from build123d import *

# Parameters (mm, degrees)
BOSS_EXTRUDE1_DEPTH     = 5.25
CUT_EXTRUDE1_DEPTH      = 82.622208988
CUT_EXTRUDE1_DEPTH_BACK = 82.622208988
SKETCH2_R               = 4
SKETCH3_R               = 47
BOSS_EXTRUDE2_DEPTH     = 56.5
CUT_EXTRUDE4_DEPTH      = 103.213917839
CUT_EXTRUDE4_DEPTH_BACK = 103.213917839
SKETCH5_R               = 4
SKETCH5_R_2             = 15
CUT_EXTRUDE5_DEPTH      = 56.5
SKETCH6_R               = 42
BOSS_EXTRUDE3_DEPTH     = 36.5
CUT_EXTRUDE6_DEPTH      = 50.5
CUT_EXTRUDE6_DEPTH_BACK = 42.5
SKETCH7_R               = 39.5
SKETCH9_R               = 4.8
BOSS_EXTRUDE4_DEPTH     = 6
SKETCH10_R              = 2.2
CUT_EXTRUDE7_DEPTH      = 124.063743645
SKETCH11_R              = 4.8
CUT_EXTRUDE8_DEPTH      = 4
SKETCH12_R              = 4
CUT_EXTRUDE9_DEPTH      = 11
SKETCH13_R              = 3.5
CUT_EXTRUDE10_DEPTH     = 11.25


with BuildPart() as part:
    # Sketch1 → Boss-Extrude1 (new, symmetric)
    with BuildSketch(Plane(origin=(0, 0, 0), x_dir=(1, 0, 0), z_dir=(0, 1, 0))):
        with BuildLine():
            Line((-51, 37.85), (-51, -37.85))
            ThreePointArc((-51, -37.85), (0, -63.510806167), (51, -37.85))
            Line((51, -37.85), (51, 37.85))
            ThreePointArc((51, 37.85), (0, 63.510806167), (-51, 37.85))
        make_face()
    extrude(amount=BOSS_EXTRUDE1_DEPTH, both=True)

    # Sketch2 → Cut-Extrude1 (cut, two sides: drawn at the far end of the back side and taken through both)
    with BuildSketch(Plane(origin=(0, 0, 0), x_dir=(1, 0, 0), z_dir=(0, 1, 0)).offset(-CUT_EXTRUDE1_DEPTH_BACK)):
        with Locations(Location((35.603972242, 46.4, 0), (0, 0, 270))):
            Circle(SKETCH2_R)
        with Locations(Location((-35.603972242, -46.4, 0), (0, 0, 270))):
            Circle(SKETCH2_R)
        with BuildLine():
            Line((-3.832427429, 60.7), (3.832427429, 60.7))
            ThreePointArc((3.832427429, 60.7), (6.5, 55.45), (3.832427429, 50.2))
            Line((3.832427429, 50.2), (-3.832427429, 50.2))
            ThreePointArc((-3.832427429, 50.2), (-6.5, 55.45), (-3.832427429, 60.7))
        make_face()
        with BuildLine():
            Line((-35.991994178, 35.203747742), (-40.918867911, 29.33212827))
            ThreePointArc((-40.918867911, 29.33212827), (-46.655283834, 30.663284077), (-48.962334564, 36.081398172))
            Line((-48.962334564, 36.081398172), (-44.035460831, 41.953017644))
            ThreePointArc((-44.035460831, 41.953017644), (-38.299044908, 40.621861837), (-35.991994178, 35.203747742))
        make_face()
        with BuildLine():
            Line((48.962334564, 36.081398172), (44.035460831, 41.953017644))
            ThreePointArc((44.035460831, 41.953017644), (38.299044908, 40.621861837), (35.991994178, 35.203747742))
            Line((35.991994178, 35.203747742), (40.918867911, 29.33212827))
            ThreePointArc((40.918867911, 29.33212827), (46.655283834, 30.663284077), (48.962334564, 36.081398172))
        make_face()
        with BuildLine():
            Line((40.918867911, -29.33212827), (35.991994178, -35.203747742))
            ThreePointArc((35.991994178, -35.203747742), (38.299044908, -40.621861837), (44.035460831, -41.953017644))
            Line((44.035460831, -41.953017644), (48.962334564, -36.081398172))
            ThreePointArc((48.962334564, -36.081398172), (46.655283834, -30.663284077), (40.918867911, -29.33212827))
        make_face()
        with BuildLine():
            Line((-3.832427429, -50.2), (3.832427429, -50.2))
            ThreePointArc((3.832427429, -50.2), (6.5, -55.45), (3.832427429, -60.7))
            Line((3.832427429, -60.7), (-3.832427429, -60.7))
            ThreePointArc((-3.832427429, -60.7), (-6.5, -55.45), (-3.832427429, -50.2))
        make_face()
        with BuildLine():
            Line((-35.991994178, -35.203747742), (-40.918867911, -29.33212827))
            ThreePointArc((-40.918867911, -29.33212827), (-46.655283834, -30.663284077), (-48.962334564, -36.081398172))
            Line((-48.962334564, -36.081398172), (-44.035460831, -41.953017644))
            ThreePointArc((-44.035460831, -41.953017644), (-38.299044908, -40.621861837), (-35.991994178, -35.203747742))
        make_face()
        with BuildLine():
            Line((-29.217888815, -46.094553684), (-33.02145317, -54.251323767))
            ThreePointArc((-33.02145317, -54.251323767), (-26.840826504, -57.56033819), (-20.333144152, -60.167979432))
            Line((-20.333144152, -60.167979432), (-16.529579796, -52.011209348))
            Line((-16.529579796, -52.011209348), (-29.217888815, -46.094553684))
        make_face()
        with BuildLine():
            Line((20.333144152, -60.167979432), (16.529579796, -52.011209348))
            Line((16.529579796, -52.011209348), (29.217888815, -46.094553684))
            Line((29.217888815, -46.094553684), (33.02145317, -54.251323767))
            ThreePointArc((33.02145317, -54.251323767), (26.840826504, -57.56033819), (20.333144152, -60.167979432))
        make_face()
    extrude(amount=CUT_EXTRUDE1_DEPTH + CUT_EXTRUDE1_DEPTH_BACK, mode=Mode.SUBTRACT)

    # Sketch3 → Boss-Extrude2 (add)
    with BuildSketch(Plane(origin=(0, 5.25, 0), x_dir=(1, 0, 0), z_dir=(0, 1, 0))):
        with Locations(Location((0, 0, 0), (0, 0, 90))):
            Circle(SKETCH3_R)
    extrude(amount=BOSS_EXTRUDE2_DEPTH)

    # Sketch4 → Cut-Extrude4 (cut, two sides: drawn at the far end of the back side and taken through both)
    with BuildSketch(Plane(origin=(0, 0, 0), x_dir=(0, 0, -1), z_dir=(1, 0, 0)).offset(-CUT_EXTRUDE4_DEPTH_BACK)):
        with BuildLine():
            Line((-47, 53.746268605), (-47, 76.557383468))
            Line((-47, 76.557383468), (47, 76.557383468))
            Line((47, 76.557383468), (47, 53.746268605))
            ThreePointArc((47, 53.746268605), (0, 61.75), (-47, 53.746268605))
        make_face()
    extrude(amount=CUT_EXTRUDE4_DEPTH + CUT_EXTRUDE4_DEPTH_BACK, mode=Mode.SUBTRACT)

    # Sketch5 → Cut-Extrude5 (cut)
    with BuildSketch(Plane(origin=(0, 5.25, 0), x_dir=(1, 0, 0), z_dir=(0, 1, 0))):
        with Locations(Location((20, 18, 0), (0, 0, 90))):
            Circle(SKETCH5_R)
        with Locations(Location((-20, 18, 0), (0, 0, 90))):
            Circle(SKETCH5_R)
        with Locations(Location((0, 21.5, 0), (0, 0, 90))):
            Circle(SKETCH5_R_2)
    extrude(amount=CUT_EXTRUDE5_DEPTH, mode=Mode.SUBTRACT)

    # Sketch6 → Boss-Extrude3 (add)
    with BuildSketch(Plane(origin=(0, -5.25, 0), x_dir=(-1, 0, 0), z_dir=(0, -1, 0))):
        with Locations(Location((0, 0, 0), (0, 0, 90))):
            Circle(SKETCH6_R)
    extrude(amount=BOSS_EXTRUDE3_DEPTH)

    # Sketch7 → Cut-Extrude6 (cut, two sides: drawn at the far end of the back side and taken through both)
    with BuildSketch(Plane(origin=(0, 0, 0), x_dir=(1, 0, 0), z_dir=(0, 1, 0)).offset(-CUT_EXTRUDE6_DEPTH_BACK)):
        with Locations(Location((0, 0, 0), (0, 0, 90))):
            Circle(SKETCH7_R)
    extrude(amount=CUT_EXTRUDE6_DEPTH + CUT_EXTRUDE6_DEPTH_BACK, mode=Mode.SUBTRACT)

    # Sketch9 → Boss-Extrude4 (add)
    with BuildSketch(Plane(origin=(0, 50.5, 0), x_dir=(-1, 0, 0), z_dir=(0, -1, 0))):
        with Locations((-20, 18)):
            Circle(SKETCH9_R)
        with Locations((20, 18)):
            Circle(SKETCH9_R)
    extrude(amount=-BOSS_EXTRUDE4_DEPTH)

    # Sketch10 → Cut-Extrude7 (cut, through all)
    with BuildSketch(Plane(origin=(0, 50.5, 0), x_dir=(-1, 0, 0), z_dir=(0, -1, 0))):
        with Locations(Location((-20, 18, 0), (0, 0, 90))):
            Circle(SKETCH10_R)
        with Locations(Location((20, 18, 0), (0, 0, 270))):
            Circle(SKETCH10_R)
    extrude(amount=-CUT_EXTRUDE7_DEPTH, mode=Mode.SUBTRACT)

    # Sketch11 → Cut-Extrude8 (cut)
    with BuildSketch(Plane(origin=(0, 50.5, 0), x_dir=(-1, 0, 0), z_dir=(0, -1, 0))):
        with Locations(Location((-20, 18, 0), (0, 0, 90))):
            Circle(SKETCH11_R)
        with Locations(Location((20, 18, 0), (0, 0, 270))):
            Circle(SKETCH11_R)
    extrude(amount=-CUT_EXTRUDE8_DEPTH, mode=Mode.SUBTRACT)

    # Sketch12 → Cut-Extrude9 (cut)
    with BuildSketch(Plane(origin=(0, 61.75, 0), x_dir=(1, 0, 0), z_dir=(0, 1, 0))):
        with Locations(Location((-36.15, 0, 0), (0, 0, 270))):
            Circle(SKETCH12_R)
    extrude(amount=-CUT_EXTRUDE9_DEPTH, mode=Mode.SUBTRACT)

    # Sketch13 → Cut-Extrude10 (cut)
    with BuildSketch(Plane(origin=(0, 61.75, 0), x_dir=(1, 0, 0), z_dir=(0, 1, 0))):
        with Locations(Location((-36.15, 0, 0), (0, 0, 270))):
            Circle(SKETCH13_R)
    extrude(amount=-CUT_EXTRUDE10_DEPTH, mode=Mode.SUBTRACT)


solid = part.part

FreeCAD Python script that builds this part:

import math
import FreeCAD as App
import Part
import Sketcher

V = App.Vector
Q = App.Units.Quantity

doc = App.newDocument("Part")
body = doc.addObject("PartDesign::Body", "Body")

sketch1 = body.newObject("Sketcher::SketchObject", "Sketch")
sketch1.AttachmentSupport = (doc.getObject("XZ_Plane"), [""])
sketch1.MapMode = "FlatFace"
sketch1.addGeometry([
    Part.LineSegment(V(-51, -38, 0), V(-51, 38, 0)),
    Part.ArcOfCircle(Part.Circle(V(0, 0, 0), V(0, 0, 1), 64), math.radians(37), math.radians(143)),
    Part.LineSegment(V(51, 38, 0), V(51, -38, 0)),
    Part.ArcOfCircle(Part.Circle(V(0, 0, 0), V(0, 0, 1), 64), math.radians(-143), math.radians(-37)),
], False)
sketch1.addConstraint([
    Sketcher.Constraint("Coincident", 0, 2, 1, 2),
    Sketcher.Constraint("Coincident", 1, 1, 2, 1),
    Sketcher.Constraint("Coincident", 2, 2, 3, 2),
    Sketcher.Constraint("Coincident", 3, 1, 0, 1),
    Sketcher.Constraint("Vertical", 0),
    Sketcher.Constraint("Vertical", 2),
    Sketcher.Constraint("Coincident", 1, 3, -1, 1),
    Sketcher.Constraint("Coincident", 3, 3, -1, 1),
    Sketcher.Constraint("Equal", 1, 3),
    Sketcher.Constraint("Horizontal", 0, 2, 1, 1),
    Sketcher.Constraint("DistanceY", 0, 1, 0, 2, Q("75.7 mm")),
    Sketcher.Constraint("DistanceX", 0, 2, -1, 1, Q("51 mm")),
])
pad1 = body.newObject("PartDesign::Pad", "Pad")
pad1.Profile = sketch1
pad1.Length = 10.5
pad1.Midplane = True

sketch2 = body.newObject("Sketcher::SketchObject", "Sketch001")
sketch2.AttachmentSupport = (doc.getObject("XZ_Plane"), [""])
sketch2.MapMode = "FlatFace"
sketch2.addGeometry([
    Part.Circle(V(35.6, -46.4, 0), V(0, 0, 1), 4),
    Part.Circle(V(-35.6, 46.4, 0), V(0, 0, 1), 4),
    Part.LineSegment(V(3.8, -60.7, 0), V(-3.8, -60.7, 0)),
    Part.ArcOfCircle(Part.Circle(V(0, -55.5, 0), V(0, 0, 1), 6.5), math.radians(126), math.radians(234)),
    Part.LineSegment(V(-3.8, -50.2, 0), V(3.8, -50.2, 0)),
    Part.ArcOfCircle(Part.Circle(V(0, -55.5, 0), V(0, 0, 1), 6.5), math.radians(-54), math.radians(54)),
    Part.LineSegment(V(-40.9, -29.3, 0), V(-36, -35.2, 0)),
    Part.ArcOfCircle(Part.Circle(V(-42.5, -35.6, 0), V(0, 0, 1), 6.5), math.radians(-104), math.radians(4)),
    Part.LineSegment(V(-44, -42, 0), V(-49, -36.1, 0)),
    Part.ArcOfCircle(Part.Circle(V(-42.5, -35.6, 0), V(0, 0, 1), 6.5), math.radians(76), math.radians(184)),
    Part.LineSegment(V(49, -36.1, 0), V(44, -42, 0)),
    Part.ArcOfCircle(Part.Circle(V(42.5, -35.6, 0), V(0, 0, 1), 6.5), math.radians(176), math.radians(284)),
    Part.LineSegment(V(36, -35.2, 0), V(40.9, -29.3, 0)),
    Part.ArcOfCircle(Part.Circle(V(42.5, -35.6, 0), V(0, 0, 1), 6.5), math.radians(-4), math.radians(104)),
    Part.LineSegment(V(40.9, 29.3, 0), V(36, 35.2, 0)),
    Part.ArcOfCircle(Part.Circle(V(42.5, 35.6, 0), V(0, 0, 1), 6.5), math.radians(76), math.radians(184)),
    Part.LineSegment(V(44, 42, 0), V(49, 36.1, 0)),
    Part.ArcOfCircle(Part.Circle(V(42.5, 35.6, 0), V(0, 0, 1), 6.5), math.radians(-104), math.radians(4)),
    Part.LineSegment(V(3.8, 50.2, 0), V(-3.8, 50.2, 0)),
    Part.ArcOfCircle(Part.Circle(V(0, 55.5, 0), V(0, 0, 1), 6.5), math.radians(126), math.radians(234)),
    Part.LineSegment(V(-3.8, 60.7, 0), V(3.8, 60.7, 0)),
    Part.ArcOfCircle(Part.Circle(V(0, 55.5, 0), V(0, 0, 1), 6.5), math.radians(-54), math.radians(54)),
    Part.LineSegment(V(-36, 35.2, 0), V(-40.9, 29.3, 0)),
    Part.ArcOfCircle(Part.Circle(V(-42.5, 35.6, 0), V(0, 0, 1), 6.5), math.radians(176), math.radians(284)),
    Part.LineSegment(V(-49, 36.1, 0), V(-44, 42, 0)),
    Part.ArcOfCircle(Part.Circle(V(-42.5, 35.6, 0), V(0, 0, 1), 6.5), math.radians(-4), math.radians(104)),
    Part.LineSegment(V(-29.2, 46.1, 0), V(-33, 54.3, 0)),
    Part.ArcOfCircle(Part.Circle(V(0, 0, 0), V(0, 0, 1), 63.5), math.radians(108.67), math.radians(121.33)),
    Part.LineSegment(V(-20.3, 60.2, 0), V(-16.5, 52, 0)),
    Part.LineSegment(V(-16.5, 52, 0), V(-29.2, 46.1, 0)),
    Part.LineSegment(V(16.5, 52, 0), V(20.3, 60.2, 0)),
    Part.ArcOfCircle(Part.Circle(V(0, 0, 0), V(0, 0, 1), 63.5), math.radians(58.67), math.radians(71.33)),
    Part.LineSegment(V(33, 54.3, 0), V(29.2, 46.1, 0)),
    Part.LineSegment(V(29.2, 46.1, 0), V(16.5, 52, 0)),
], False)
sketch2.addConstraint([
    Sketcher.Constraint("Coincident", 2, 2, 3, 2),
    Sketcher.Constraint("Coincident", 3, 1, 4, 1),
    Sketcher.Constraint("Coincident", 4, 2, 5, 2),
    Sketcher.Constraint("Coincident", 5, 1, 2, 1),
    Sketcher.Constraint("Coincident", 6, 2, 7, 2),
    Sketcher.Constraint("Coincident", 7, 1, 8, 1),
    Sketcher.Constraint("Coincident", 8, 2, 9, 2),
    Sketcher.Constraint("Coincident", 9, 1, 6, 1),
    Sketcher.Constraint("Coincident", 10, 2, 11, 2),
    Sketcher.Constraint("Coincident", 11, 1, 12, 1),
    Sketcher.Constraint("Coincident", 12, 2, 13, 2),
    Sketcher.Constraint("Coincident", 13, 1, 10, 1),
    Sketcher.Constraint("Coincident", 14, 2, 15, 2),
    Sketcher.Constraint("Coincident", 15, 1, 16, 1),
    Sketcher.Constraint("Coincident", 16, 2, 17, 2),
    Sketcher.Constraint("Coincident", 17, 1, 14, 1),
    Sketcher.Constraint("Coincident", 18, 2, 19, 2),
    Sketcher.Constraint("Coincident", 19, 1, 20, 1),
    Sketcher.Constraint("Coincident", 20, 2, 21, 2),
    Sketcher.Constraint("Coincident", 21, 1, 18, 1),
    Sketcher.Constraint("Coincident", 22, 2, 23, 2),
    Sketcher.Constraint("Coincident", 23, 1, 24, 1),
    Sketcher.Constraint("Coincident", 24, 2, 25, 2),
    Sketcher.Constraint("Coincident", 25, 1, 22, 1),
    Sketcher.Constraint("Coincident", 26, 2, 27, 2),
    Sketcher.Constraint("Coincident", 27, 1, 28, 1),
    Sketcher.Constraint("Coincident", 28, 2, 29, 1),
    Sketcher.Constraint("Coincident", 29, 2, 26, 1),
    Sketcher.Constraint("Coincident", 30, 2, 31, 2),
    Sketcher.Constraint("Coincident", 31, 1, 32, 1),
    Sketcher.Constraint("Coincident", 32, 2, 33, 1),
    Sketcher.Constraint("Coincident", 33, 2, 30, 1),
    Sketcher.Constraint("Horizontal", 2),
    Sketcher.Constraint("Horizontal", 4),
    Sketcher.Constraint("Horizontal", 18),
    Sketcher.Constraint("Horizontal", 20),
    Sketcher.Constraint("Coincident", 27, 3, -1, 1),
    Sketcher.Constraint("Coincident", 31, 3, -1, 1),
    Sketcher.Constraint("Coincident", 5, 3, 3, 3),
    Sketcher.Constraint("Coincident", 9, 3, 7, 3),
    Sketcher.Constraint("Coincident", 13, 3, 11, 3),
    Sketcher.Constraint("Coincident", 17, 3, 15, 3),
    Sketcher.Constraint("Coincident", 21, 3, 19, 3),
    Sketcher.Constraint("Coincident", 25, 3, 23, 3),
    Sketcher.Constraint("Equal", 0, 1),
    Sketcher.Constraint("Equal", 3, 5),
    Sketcher.Constraint("Equal", 5, 7),
    Sketcher.Constraint("Equal", 7, 9),
    Sketcher.Constraint("Equal", 9, 11),
    Sketcher.Constraint("Equal", 11, 13),
    Sketcher.Constraint("Equal", 13, 15),
    Sketcher.Constraint("Equal", 15, 17),
    Sketcher.Constraint("Equal", 17, 19),
    Sketcher.Constraint("Equal", 19, 21),
    Sketcher.Constraint("Equal", 21, 23),
    Sketcher.Constraint("Equal", 23, 25),
    Sketcher.Constraint("Equal", 27, 31),
    Sketcher.Constraint("Symmetric", 0, 3, 1, 3, -1, 1),
    Sketcher.Constraint("Symmetric", 7, 3, 15, 3, -1, 1),
    Sketcher.Constraint("Symmetric", 3, 3, 19, 3, -1, 1),
    Sketcher.Constraint("Symmetric", 11, 3, 23, 3, -1, 1),
    Sketcher.Constraint("Symmetric", 7, 3, 11, 3, -2),
    Sketcher.Constraint("Symmetric", 29, 2, 32, 2, -2),
    Sketcher.Constraint("Symmetric", 28, 2, 33, 2, -2),
    Sketcher.Constraint("Symmetric", 3, 1, 18, 2, -1),
    Sketcher.Constraint("Parallel", 6, 8),
    Sketcher.Constraint("Parallel", 10, 12),
    Sketcher.Constraint("Parallel", 8, 14),
    Sketcher.Constraint("Parallel", 14, 16),
    Sketcher.Constraint("Parallel", 12, 22),
    Sketcher.Constraint("Parallel", 22, 24),
    Sketcher.Constraint("Parallel", 26, 28),
    Sketcher.Constraint("Perpendicular", 28, 29),
    Sketcher.Constraint("Parallel", 30, 32),
    Sketcher.Constraint("Perpendicular", 32, 33),
    Sketcher.Constraint("Horizontal", 7, 1, 10, 2),
    Sketcher.Constraint("Horizontal", 6, 2, 11, 1),
    Sketcher.Constraint("Horizontal", 9, 1, 12, 2),
    Sketcher.Constraint("Horizontal", 17, 1, 22, 2),
    Sketcher.Constraint("Horizontal", 16, 2, 23, 1),
    Sketcher.Constraint("Vertical", 2, 2, 3, 1),
    Sketcher.Constraint("Vertical", 11, 1, 14, 2),
    Sketcher.Constraint("Vertical", 10, 2, 15, 1),
    Sketcher.Constraint("Vertical", 18, 2, 19, 1),
    Sketcher.Constraint("Equal", 6, 8),
    Sketcher.Constraint("Equal", 26, 28),
    Sketcher.Constraint("Diameter", 0, Q("8 mm")),
    Sketcher.Constraint("Radius", 3, Q("6.5 mm")),
    Sketcher.Constraint("Angle", 6, Q("-50 deg")),
    Sketcher.Constraint("Angle", 26, Q("115 deg")),
    Sketcher.Constraint("Distance", 26, Q("9 mm")),
    Sketcher.Constraint("Distance", 29, Q("14 mm")),
    Sketcher.Constraint("DistanceY", 0, 3, -1, 1, Q("46.4 mm")),
    Sketcher.Constraint("DistanceY", 2, 2, -1, 1, Q("60.7 mm")),
    Sketcher.Constraint("DistanceY", 3, 1, -1, 1, Q("50.2 mm")),
    Sketcher.Constraint("Radius", 27, Q("63.510806 mm")),
    Sketcher.Constraint("DistanceY", 8, 2, -1, 1, Q("36.081398 mm")),
    Sketcher.Constraint("DistanceX", 2, 2, 0, 3, Q("39.4364 mm")),
    Sketcher.Constraint("DistanceX", 7, 1, -1, 1, Q("44.035461 mm")),
    Sketcher.Constraint("DistanceY", 9, 1, -1, 1, Q("29.332128 mm")),
])
pocket1 = body.newObject("PartDesign::Pocket", "Pocket")
pocket1.Profile = sketch2
pocket1.Type = "ThroughAll"
pocket1.Midplane = True

sketch3 = body.newObject("Sketcher::SketchObject", "Sketch002")
sketch3.AttachmentSupport = (doc.getObject("XZ_Plane"), [""])
sketch3.MapMode = "FlatFace"
sketch3.AttachmentOffset = App.Placement(V(0, 0, -5.25), App.Rotation())
sketch3.addGeometry(Part.Circle(V(0, 0, 0), V(0, 0, 1), 47), False)
sketch3.addConstraint([
    Sketcher.Constraint("Coincident", 0, 3, -1, 1),
    Sketcher.Constraint("Diameter", 0, Q("94 mm")),
])
pad2 = body.newObject("PartDesign::Pad", "Pad001")
pad2.Profile = sketch3
pad2.Length = 56.5
pad2.Reversed = True

sketch4 = body.newObject("Sketcher::SketchObject", "Sketch003")
sketch4.AttachmentSupport = (doc.getObject("YZ_Plane"), [""])
sketch4.MapMode = "FlatFace"
sketch4.addGeometry([
    Part.LineSegment(V(77, 47, 0), V(54, 47, 0)),
    Part.ArcOfCircle(Part.Circle(V(-80, 0, 0), V(0, 0, 1), 142), math.radians(-19), math.radians(19)),
    Part.LineSegment(V(54, -47, 0), V(77, -47, 0)),
    Part.LineSegment(V(77, -47, 0), V(77, 47, 0)),
], False)
sketch4.addConstraint([
    Sketcher.Constraint("Coincident", 0, 2, 1, 2),
    Sketcher.Constraint("Coincident", 1, 1, 2, 1),
    Sketcher.Constraint("Coincident", 2, 2, 3, 1),
    Sketcher.Constraint("Coincident", 3, 2, 0, 1),
    Sketcher.Constraint("Horizontal", 0),
    Sketcher.Constraint("Horizontal", 2),
    Sketcher.Constraint("Vertical", 3),
    Sketcher.Constraint("Symmetric", 0, 2, 1, 1, -1),
    Sketcher.Constraint("Radius", 1, Q("142 mm")),
    Sketcher.Constraint("DistanceY", 3, 1, 3, 2, Q("94 mm")),
    Sketcher.Constraint("DistanceX", 1, 3, -1, 1, Q("80.25 mm")),
    Sketcher.Constraint("DistanceX", 0, 2, 0, 1, Q("22.811115 mm")),
])
pocket2 = body.newObject("PartDesign::Pocket", "Pocket001")
pocket2.Profile = sketch4
pocket2.Type = "ThroughAll"
pocket2.Midplane = True

sketch5 = body.newObject("Sketcher::SketchObject", "Sketch004")
sketch5.AttachmentSupport = (doc.getObject("XZ_Plane"), [""])
sketch5.MapMode = "FlatFace"
sketch5.AttachmentOffset = App.Placement(V(0, 0, -5.25), App.Rotation())
sketch5.addGeometry([
    Part.Circle(V(20, -18, 0), V(0, 0, 1), 4),
    Part.Circle(V(-20, -18, 0), V(0, 0, 1), 4),
    Part.Circle(V(0, -21.5, 0), V(0, 0, 1), 15),
], False)
sketch5.addConstraint([
    Sketcher.Constraint("Equal", 0, 1),
    Sketcher.Constraint("Symmetric", 0, 3, 1, 3, -2),
    Sketcher.Constraint("PointOnObject", 2, 3, -2),
    Sketcher.Constraint("Diameter", 0, Q("8 mm")),
    Sketcher.Constraint("Diameter", 2, Q("30 mm")),
    Sketcher.Constraint("DistanceX", -1, 1, 0, 3, Q("20 mm")),
    Sketcher.Constraint("DistanceY", 0, 3, -1, 1, Q("18 mm")),
    Sketcher.Constraint("DistanceY", 2, 3, -1, 1, Q("21.5 mm")),
])
pocket3 = body.newObject("PartDesign::Pocket", "Pocket002")
pocket3.Profile = sketch5
pocket3.Length = 56.5

sketch6 = body.newObject("Sketcher::SketchObject", "Sketch005")
sketch6.AttachmentSupport = (doc.getObject("XZ_Plane"), [""])
sketch6.MapMode = "FlatFace"
sketch6.AttachmentOffset = App.Placement(V(0, 0, 5.25), App.Rotation())
sketch6.addGeometry(Part.Circle(V(0, 0, 0), V(0, 0, 1), 42), False)
sketch6.addConstraint([
    Sketcher.Constraint("Coincident", 0, 3, -1, 1),
    Sketcher.Constraint("Diameter", 0, Q("84 mm")),
])
pad3 = body.newObject("PartDesign::Pad", "Pad002")
pad3.Profile = sketch6
pad3.Length = 36.5

sketch7 = body.newObject("Sketcher::SketchObject", "Sketch006")
sketch7.AttachmentSupport = (doc.getObject("XZ_Plane"), [""])
sketch7.MapMode = "FlatFace"
sketch7.addGeometry(Part.Circle(V(0, 0, 0), V(0, 0, 1), 40), False)
sketch7.addConstraint([
    Sketcher.Constraint("Coincident", 0, 3, -1, 1),
    Sketcher.Constraint("Diameter", 0, Q("79 mm")),
])
pocket4 = body.newObject("PartDesign::Pocket", "Pocket003")
pocket4.Profile = sketch7
pocket4.Type = "TwoLengths"
pocket4.Length = 50.5
pocket4.Length2 = 42.5

sketch8 = body.newObject("Sketcher::SketchObject", "Sketch007")
sketch8.AttachmentSupport = (doc.getObject("XZ_Plane"), [""])
sketch8.MapMode = "FlatFace"
sketch8.AttachmentOffset = App.Placement(V(0, 0, -50.5), App.Rotation())
sketch8.addGeometry([
    Part.Circle(V(20, -18, 0), V(0, 0, 1), 4.8),
    Part.Circle(V(-20, -18, 0), V(0, 0, 1), 4.8),
], False)
sketch8.addConstraint([
    Sketcher.Constraint("Equal", 0, 1),
    Sketcher.Constraint("Symmetric", 0, 3, 1, 3, -2),
    Sketcher.Constraint("Diameter", 0, Q("9.6 mm")),
    Sketcher.Constraint("DistanceX", -1, 1, 0, 3, Q("20 mm")),
    Sketcher.Constraint("DistanceY", 0, 3, -1, 1, Q("18 mm")),
])
pad4 = body.newObject("PartDesign::Pad", "Pad003")
pad4.Profile = sketch8
pad4.Length = 6
pad4.Reversed = True

sketch9 = body.newObject("Sketcher::SketchObject", "Sketch008")
sketch9.AttachmentSupport = (doc.getObject("XZ_Plane"), [""])
sketch9.MapMode = "FlatFace"
sketch9.AttachmentOffset = App.Placement(V(0, 0, -50.5), App.Rotation())
sketch9.addGeometry([
    Part.Circle(V(20, -18, 0), V(0, 0, 1), 2.2),
    Part.Circle(V(-20, -18, 0), V(0, 0, 1), 2.2),
], False)
sketch9.addConstraint([
    Sketcher.Constraint("Equal", 0, 1),
    Sketcher.Constraint("Symmetric", 0, 3, 1, 3, -2),
    Sketcher.Constraint("Diameter", 0, Q("4.4 mm")),
    Sketcher.Constraint("DistanceX", -1, 1, 0, 3, Q("20 mm")),
    Sketcher.Constraint("DistanceY", 0, 3, -1, 1, Q("18 mm")),
])
pocket5 = body.newObject("PartDesign::Pocket", "Pocket004")
pocket5.Profile = sketch9
pocket5.Type = "ThroughAll"

sketch10 = body.newObject("Sketcher::SketchObject", "Sketch009")
sketch10.AttachmentSupport = (doc.getObject("XZ_Plane"), [""])
sketch10.MapMode = "FlatFace"
sketch10.AttachmentOffset = App.Placement(V(0, 0, -50.5), App.Rotation())
sketch10.addGeometry([
    Part.Circle(V(20, -18, 0), V(0, 0, 1), 4.8),
    Part.Circle(V(-20, -18, 0), V(0, 0, 1), 4.8),
], False)
sketch10.addConstraint([
    Sketcher.Constraint("Equal", 0, 1),
    Sketcher.Constraint("Symmetric", 0, 3, 1, 3, -2),
    Sketcher.Constraint("Diameter", 0, Q("9.6 mm")),
    Sketcher.Constraint("DistanceX", -1, 1, 0, 3, Q("20 mm")),
    Sketcher.Constraint("DistanceY", 0, 3, -1, 1, Q("18 mm")),
])
pocket6 = body.newObject("PartDesign::Pocket", "Pocket005")
pocket6.Profile = sketch10
pocket6.Length = 4

sketch11 = body.newObject("Sketcher::SketchObject", "Sketch010")
sketch11.AttachmentSupport = (doc.getObject("XZ_Plane"), [""])
sketch11.MapMode = "FlatFace"
sketch11.AttachmentOffset = App.Placement(V(0, 0, -61.75), App.Rotation())
sketch11.addGeometry(Part.Circle(V(-36.1, 0, 0), V(0, 0, 1), 4), False)
sketch11.addConstraint([
    Sketcher.Constraint("PointOnObject", 0, 3, -1),
    Sketcher.Constraint("Diameter", 0, Q("8 mm")),
    Sketcher.Constraint("DistanceX", 0, 3, -1, 1, Q("36.15 mm")),
])
pocket7 = body.newObject("PartDesign::Pocket", "Pocket006")
pocket7.Profile = sketch11
pocket7.Length = 11
pocket7.Reversed = True

sketch12 = body.newObject("Sketcher::SketchObject", "Sketch011")
sketch12.AttachmentSupport = (doc.getObject("XZ_Plane"), [""])
sketch12.MapMode = "FlatFace"
sketch12.AttachmentOffset = App.Placement(V(0, 0, -61.75), App.Rotation())
sketch12.addGeometry(Part.Circle(V(-36.1, 0, 0), V(0, 0, 1), 3.5), False)
sketch12.addConstraint([
    Sketcher.Constraint("PointOnObject", 0, 3, -1),
    Sketcher.Constraint("Diameter", 0, Q("7 mm")),
    Sketcher.Constraint("DistanceX", 0, 3, -1, 1, Q("36.15 mm")),
])
pocket8 = body.newObject("PartDesign::Pocket", "Pocket007")
pocket8.Profile = sketch12
pocket8.Length = 11.25
pocket8.Reversed = True

doc.recompute()
